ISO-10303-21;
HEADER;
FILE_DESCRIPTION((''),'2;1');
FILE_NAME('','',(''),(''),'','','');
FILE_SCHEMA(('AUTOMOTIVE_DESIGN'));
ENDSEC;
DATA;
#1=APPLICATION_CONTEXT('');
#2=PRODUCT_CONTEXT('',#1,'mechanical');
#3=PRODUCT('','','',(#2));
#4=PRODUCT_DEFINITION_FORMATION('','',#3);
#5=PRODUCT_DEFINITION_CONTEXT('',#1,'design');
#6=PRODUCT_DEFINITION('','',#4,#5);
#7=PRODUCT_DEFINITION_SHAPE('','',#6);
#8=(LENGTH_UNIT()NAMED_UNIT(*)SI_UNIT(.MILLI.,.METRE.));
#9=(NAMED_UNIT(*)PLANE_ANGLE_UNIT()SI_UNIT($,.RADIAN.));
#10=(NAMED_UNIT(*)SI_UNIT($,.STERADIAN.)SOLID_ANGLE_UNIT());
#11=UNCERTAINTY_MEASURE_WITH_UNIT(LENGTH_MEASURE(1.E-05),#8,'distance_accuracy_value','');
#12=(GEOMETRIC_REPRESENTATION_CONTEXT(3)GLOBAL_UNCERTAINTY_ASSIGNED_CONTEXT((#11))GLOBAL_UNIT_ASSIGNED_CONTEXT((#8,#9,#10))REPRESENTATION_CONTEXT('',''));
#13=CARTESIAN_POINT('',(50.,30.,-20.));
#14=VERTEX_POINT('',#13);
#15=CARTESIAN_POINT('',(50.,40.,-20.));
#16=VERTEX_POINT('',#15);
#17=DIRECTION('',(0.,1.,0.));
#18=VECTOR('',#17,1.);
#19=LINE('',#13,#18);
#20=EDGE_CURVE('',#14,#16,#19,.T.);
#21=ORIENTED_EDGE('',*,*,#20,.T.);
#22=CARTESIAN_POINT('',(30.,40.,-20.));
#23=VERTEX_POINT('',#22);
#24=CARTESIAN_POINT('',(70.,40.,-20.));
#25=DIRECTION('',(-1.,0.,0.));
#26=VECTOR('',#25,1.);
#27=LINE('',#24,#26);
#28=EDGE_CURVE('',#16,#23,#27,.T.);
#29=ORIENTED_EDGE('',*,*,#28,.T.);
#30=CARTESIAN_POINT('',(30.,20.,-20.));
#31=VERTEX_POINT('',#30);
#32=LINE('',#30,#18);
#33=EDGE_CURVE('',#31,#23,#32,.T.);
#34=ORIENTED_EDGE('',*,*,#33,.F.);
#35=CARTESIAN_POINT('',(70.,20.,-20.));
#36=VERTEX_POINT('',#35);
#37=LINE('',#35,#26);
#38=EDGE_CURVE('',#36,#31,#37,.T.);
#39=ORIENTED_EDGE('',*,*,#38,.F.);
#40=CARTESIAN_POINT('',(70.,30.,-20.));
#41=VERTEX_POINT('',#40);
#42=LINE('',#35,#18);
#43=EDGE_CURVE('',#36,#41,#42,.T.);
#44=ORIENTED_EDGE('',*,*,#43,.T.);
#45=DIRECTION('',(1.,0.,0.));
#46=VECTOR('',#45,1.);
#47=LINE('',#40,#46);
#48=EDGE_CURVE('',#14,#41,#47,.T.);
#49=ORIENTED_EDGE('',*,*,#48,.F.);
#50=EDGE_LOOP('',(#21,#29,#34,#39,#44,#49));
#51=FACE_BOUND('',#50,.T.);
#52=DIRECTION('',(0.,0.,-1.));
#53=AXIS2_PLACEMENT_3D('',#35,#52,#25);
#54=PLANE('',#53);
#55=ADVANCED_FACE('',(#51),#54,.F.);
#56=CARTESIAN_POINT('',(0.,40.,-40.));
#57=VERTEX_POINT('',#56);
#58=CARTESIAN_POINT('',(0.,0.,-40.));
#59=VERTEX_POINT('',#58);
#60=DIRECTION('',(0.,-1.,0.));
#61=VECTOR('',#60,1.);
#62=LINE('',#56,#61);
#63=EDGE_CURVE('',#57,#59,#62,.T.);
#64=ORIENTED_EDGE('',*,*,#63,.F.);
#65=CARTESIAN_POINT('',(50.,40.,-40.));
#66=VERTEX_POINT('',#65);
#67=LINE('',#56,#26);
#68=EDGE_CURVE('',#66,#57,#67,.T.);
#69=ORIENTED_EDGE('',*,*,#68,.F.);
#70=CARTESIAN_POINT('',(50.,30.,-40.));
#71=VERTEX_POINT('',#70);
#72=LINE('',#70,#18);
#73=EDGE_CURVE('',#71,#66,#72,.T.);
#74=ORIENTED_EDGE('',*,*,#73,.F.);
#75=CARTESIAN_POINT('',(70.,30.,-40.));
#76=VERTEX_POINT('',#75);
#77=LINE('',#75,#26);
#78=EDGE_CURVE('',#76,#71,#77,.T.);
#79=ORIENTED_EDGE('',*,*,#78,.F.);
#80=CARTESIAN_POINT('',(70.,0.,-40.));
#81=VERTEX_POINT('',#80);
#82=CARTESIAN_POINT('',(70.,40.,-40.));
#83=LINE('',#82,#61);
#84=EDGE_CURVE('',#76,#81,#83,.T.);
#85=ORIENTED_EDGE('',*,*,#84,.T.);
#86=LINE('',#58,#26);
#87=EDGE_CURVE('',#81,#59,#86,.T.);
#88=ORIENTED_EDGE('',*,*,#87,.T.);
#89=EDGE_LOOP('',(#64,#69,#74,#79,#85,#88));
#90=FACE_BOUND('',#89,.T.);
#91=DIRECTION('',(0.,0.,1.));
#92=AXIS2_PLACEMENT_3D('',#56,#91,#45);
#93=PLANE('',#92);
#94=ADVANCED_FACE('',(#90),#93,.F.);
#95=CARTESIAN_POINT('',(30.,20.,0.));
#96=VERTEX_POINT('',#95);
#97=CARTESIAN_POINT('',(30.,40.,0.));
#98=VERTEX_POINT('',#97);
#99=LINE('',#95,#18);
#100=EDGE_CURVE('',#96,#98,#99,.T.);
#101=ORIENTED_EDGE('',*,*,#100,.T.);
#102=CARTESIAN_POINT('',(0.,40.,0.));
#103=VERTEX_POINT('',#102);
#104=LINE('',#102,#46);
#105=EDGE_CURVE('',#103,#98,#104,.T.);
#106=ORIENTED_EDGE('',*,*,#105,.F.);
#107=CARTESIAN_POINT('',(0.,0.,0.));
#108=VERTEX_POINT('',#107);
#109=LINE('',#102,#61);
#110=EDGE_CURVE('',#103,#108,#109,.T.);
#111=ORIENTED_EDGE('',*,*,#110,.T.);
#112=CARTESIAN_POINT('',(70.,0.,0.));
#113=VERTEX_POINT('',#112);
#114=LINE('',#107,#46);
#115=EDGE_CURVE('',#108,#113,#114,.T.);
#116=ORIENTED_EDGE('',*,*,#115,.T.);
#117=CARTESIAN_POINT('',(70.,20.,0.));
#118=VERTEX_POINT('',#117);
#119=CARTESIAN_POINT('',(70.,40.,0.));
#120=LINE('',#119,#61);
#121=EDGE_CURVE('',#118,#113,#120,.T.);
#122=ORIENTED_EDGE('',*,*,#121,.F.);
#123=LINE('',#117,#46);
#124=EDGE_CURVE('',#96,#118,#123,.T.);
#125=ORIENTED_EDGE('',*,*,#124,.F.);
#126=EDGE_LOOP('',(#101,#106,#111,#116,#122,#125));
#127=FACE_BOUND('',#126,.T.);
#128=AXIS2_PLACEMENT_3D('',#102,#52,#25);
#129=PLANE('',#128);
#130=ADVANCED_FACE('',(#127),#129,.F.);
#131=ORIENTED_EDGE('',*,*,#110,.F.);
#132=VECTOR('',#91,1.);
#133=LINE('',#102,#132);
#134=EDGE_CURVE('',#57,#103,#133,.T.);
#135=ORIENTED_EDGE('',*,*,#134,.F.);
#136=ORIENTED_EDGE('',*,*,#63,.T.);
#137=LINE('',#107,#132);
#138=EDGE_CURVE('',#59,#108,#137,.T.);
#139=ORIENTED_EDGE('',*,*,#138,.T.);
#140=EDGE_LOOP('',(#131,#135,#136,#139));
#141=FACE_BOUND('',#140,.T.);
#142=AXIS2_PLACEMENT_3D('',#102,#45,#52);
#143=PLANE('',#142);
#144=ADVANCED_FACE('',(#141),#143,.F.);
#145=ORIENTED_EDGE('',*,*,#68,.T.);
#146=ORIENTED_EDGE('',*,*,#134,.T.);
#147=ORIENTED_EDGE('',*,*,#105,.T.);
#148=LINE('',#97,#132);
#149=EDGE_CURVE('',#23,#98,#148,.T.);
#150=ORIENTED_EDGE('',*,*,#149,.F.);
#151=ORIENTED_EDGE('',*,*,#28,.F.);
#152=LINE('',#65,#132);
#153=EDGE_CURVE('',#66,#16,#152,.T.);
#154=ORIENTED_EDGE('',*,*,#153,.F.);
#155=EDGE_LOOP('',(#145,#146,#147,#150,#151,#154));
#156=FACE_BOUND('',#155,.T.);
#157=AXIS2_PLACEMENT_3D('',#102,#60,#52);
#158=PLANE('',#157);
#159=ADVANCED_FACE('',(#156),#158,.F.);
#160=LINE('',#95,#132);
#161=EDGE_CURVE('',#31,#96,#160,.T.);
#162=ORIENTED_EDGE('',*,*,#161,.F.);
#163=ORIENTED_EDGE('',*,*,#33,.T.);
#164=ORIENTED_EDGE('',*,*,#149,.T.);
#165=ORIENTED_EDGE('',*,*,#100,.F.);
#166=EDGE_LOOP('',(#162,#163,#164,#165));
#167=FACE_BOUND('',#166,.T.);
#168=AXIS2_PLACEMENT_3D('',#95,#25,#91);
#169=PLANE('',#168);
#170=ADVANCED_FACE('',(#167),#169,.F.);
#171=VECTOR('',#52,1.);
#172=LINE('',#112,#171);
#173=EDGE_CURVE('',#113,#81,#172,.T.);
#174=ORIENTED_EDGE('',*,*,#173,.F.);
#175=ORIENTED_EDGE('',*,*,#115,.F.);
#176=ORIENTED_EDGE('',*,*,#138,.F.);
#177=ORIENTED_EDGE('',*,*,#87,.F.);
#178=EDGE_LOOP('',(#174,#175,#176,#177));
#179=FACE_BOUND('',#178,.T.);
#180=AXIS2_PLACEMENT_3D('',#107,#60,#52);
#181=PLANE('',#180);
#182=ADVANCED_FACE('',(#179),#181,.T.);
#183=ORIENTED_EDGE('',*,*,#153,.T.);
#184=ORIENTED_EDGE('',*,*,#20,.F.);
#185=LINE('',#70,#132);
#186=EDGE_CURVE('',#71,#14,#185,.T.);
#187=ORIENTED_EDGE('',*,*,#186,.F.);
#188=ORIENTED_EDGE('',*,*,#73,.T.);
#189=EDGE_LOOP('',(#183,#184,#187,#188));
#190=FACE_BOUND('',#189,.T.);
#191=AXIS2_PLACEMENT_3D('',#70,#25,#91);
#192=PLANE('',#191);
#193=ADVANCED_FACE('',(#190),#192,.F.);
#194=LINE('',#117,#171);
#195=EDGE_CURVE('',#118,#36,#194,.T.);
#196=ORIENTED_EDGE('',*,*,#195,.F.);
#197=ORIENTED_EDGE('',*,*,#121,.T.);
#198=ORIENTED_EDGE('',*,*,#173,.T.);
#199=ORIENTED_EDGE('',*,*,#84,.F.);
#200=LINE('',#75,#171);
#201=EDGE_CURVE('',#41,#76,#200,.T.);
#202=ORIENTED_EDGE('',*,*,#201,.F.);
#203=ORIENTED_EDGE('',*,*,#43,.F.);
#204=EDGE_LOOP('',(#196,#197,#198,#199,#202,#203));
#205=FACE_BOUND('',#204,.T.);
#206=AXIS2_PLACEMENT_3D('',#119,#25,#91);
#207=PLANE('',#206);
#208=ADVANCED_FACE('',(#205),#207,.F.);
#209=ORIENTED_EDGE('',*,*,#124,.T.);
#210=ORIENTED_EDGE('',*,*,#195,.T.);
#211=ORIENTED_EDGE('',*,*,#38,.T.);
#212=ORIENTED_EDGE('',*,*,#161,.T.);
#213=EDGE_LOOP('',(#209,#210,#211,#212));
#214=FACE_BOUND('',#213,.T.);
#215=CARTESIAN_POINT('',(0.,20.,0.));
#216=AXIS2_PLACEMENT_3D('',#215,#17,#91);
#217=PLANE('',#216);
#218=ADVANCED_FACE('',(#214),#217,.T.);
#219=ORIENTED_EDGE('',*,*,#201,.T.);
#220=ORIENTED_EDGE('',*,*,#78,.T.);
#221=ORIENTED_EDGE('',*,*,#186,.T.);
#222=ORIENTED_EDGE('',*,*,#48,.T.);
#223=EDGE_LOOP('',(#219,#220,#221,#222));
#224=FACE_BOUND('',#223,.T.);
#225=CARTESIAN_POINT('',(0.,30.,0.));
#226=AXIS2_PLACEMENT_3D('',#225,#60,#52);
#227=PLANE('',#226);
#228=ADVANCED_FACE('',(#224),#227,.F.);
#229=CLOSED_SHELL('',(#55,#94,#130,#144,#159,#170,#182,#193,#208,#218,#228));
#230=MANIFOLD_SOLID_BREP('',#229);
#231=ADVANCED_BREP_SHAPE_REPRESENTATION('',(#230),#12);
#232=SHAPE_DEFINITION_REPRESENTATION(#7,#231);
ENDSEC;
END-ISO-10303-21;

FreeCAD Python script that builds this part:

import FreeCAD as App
import Part
import Sketcher
from FreeCAD import Vector
Q = App.Units.Quantity


def add_polygon(sketch, points):
    """Adds a closed chain of lines whose ends are joined by coincident constraints."""
    first, n = sketch.GeometryCount, len(points)
    for a, b in zip(points, points[1:] + points[:1]):
        sketch.addGeometry(Part.LineSegment(App.Vector(*a, 0), App.Vector(*b, 0)), False)
    for i in range(n):
        sketch.addConstraint(Sketcher.Constraint("Coincident", first + i, 2, first + (i + 1) % n, 1))

doc = App.newDocument("Part")
params = doc.addObject("Spreadsheet::Sheet", "Params")
for row, (alias, value) in enumerate([
    ("sketch1_width", "70 mm"),
    ("sketch1_height", "40 mm"),
    ("pad1_length", "40 mm"),
    ("sketch2_width", "20 mm"),
    ("pocket1_length", "10 mm"),
    ("sketch3_width", "40 mm"),
    ("sketch3_height", "20 mm"),
    ("pocket2_length", "20 mm"),
], start=1):
    params.set(f"A{row}", alias)
    params.set(f"B{row}", "=" + value)
    params.setAlias(f"B{row}", alias)

body = doc.addObject("PartDesign::Body", "Body")

# Sketch on XZ plane
sketch1 = doc.addObject("Sketcher::SketchObject", "Sketch")
body.addObject(sketch1)
sketch1.AttachmentSupport = (doc.XZ_Plane, [""])
sketch1.MapMode = "FlatFace"
add_polygon(sketch1, [(0, -40), (0, 0), (70, 0), (70, -40)])  # lines 0-3
sketch1.addConstraint([
    Sketcher.Constraint("Vertical", 0),
    Sketcher.Constraint("Horizontal", 1),
    Sketcher.Constraint("Vertical", 2),
    Sketcher.Constraint("Horizontal", 3),
    Sketcher.Constraint("Coincident", 0, 2, -1, 1),
    Sketcher.Constraint("DistanceX", 1, 1, 1, 2, Q("70 mm")),
    Sketcher.Constraint("DistanceY", 0, 1, 0, 2, Q("40 mm")),
])
sketch1.setExpression("Constraints[9]", "Params.sketch1_width")
sketch1.setExpression("Constraints[10]", "Params.sketch1_height")
pad1 = doc.addObject("PartDesign::Pad", "Pad")
body.addObject(pad1)
pad1.Profile = sketch1
pad1.setExpression("Length", "Params.pad1_length")
pad1.Reversed = True

# Sketch on XZ plane
sketch2 = doc.addObject("Sketcher::SketchObject", "Sketch001")
body.addObject(sketch2)
sketch2.AttachmentSupport = (doc.XZ_Plane, [""])
sketch2.MapMode = "FlatFace"
sketch2.AttachmentOffset = App.Placement(Vector(0, 0, -40), App.Rotation())
add_polygon(sketch2, [(50, -40), (50, -20), (70, -20), (70, -40)])  # lines 0-3
sketch2.addConstraint([
    Sketcher.Constraint("Vertical", 0),
    Sketcher.Constraint("Horizontal", 1),
    Sketcher.Constraint("Vertical", 2),
    Sketcher.Constraint("Horizontal", 3),
    Sketcher.Constraint("Equal", 3, 0),
    Sketcher.Constraint("DistanceX", 1, 1, 1, 2, Q("20 mm")),
    Sketcher.Constraint("DistanceX", -1, 1, 0, 2, Q("50 mm")),
    Sketcher.Constraint("DistanceY", 0, 2, -1, 1, Q("20 mm")),
])
sketch2.setExpression("Constraints[9]", "Params.sketch2_width")
pocket1 = doc.addObject("PartDesign::Pocket", "Pocket")
body.addObject(pocket1)
pocket1.Profile = sketch2
pocket1.setExpression("Length", "Params.pocket1_length")
pocket1.Reversed = True

# Sketch on XZ plane
sketch3 = doc.addObject("Sketcher::SketchObject", "Sketch002")
body.addObject(sketch3)
sketch3.AttachmentSupport = (doc.XZ_Plane, [""])
sketch3.MapMode = "FlatFace"
sketch3.AttachmentOffset = App.Placement(Vector(0, 0, -40), App.Rotation())
add_polygon(sketch3, [(30, -20), (30, 0), (70, 0), (70, -20)])  # lines 0-3
sketch3.addConstraint([
    Sketcher.Constraint("Vertical", 0),
    Sketcher.Constraint("Horizontal", 1),
    Sketcher.Constraint("Vertical", 2),
    Sketcher.Constraint("Horizontal", 3),
    Sketcher.Constraint("PointOnObject", 0, 2, -1),
    Sketcher.Constraint("DistanceX", 1, 1, 1, 2, Q("40 mm")),
    Sketcher.Constraint("DistanceY", 0, 1, 0, 2, Q("20 mm")),
    Sketcher.Constraint("DistanceX", -1, 1, 0, 2, Q("30 mm")),
])
sketch3.setExpression("Constraints[9]", "Params.sketch3_width")
sketch3.setExpression("Constraints[10]", "Params.sketch3_height")
pocket2 = doc.addObject("PartDesign::Pocket", "Pocket001")
body.addObject(pocket2)
pocket2.Profile = sketch3
pocket2.setExpression("Length", "Params.pocket2_length")
pocket2.Reversed = True

doc.recompute()
